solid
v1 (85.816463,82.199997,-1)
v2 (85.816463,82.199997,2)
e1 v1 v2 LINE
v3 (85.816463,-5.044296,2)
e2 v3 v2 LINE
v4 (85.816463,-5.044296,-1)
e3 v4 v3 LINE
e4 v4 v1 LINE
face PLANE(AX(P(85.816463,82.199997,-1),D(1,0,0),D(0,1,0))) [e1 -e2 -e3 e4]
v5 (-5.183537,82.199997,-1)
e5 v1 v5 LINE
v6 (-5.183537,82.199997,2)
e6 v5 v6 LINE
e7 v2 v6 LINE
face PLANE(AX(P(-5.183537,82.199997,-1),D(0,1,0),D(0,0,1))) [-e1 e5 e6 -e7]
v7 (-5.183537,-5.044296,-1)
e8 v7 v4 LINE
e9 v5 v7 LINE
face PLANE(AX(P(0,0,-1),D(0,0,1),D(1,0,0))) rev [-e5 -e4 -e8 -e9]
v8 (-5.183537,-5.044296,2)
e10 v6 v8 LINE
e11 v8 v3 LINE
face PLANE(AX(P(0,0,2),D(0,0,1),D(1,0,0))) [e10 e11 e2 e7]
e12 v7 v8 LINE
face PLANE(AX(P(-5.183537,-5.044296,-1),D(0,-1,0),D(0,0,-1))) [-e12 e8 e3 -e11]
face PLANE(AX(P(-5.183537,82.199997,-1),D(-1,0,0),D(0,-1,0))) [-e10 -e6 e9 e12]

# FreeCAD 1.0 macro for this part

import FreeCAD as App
import Part
import Sketcher
Q = App.Units.Quantity


def add_polygon(sketch, points):
    """Adds a closed chain of lines whose ends are joined by coincident constraints."""
    first, n = sketch.GeometryCount, len(points)
    for a, b in zip(points, points[1:] + points[:1]):
        sketch.addGeometry(Part.LineSegment(App.Vector(*a, 0), App.Vector(*b, 0)), False)
    for i in range(n):
        sketch.addConstraint(Sketcher.Constraint("Coincident", first + i, 2, first + (i + 1) % n, 1))

doc = App.newDocument("Part")
body = doc.addObject("PartDesign::Body", "Body")

# Sketch on XY plane
sketch1 = body.newObject("Sketcher::SketchObject", "Sketch")
sketch1.AttachmentSupport = (doc.getObject("XY_Plane"), [""])
sketch1.MapMode = "FlatFace"
add_polygon(sketch1, [(-5, 82), (-5, -5), (86, -5), (86, 82)])  # lines 0-3
sketch1.addConstraint([
    Sketcher.Constraint("Vertical", 0),
    Sketcher.Constraint("Horizontal", 1),
    Sketcher.Constraint("Vertical", 2),
    Sketcher.Constraint("Horizontal", 3),
    Sketcher.Constraint("DistanceX", 1, 1, 1, 2, Q("91 mm")),
    Sketcher.Constraint("DistanceY", 0, 2, 0, 1, Q("87.244293 mm")),
    Sketcher.Constraint("DistanceX", 0, 2, -1, 1, Q("5.183537 mm")),
    Sketcher.Constraint("DistanceY", 0, 2, -1, 1, Q("5.044296 mm")),
])
pad1 = body.newObject("PartDesign::Pad", "Pad")
pad1.Profile = sketch1
pad1.Type = "TwoLengths"
pad1.Length = 2
pad1.Length2 = 1

doc.recompute()
